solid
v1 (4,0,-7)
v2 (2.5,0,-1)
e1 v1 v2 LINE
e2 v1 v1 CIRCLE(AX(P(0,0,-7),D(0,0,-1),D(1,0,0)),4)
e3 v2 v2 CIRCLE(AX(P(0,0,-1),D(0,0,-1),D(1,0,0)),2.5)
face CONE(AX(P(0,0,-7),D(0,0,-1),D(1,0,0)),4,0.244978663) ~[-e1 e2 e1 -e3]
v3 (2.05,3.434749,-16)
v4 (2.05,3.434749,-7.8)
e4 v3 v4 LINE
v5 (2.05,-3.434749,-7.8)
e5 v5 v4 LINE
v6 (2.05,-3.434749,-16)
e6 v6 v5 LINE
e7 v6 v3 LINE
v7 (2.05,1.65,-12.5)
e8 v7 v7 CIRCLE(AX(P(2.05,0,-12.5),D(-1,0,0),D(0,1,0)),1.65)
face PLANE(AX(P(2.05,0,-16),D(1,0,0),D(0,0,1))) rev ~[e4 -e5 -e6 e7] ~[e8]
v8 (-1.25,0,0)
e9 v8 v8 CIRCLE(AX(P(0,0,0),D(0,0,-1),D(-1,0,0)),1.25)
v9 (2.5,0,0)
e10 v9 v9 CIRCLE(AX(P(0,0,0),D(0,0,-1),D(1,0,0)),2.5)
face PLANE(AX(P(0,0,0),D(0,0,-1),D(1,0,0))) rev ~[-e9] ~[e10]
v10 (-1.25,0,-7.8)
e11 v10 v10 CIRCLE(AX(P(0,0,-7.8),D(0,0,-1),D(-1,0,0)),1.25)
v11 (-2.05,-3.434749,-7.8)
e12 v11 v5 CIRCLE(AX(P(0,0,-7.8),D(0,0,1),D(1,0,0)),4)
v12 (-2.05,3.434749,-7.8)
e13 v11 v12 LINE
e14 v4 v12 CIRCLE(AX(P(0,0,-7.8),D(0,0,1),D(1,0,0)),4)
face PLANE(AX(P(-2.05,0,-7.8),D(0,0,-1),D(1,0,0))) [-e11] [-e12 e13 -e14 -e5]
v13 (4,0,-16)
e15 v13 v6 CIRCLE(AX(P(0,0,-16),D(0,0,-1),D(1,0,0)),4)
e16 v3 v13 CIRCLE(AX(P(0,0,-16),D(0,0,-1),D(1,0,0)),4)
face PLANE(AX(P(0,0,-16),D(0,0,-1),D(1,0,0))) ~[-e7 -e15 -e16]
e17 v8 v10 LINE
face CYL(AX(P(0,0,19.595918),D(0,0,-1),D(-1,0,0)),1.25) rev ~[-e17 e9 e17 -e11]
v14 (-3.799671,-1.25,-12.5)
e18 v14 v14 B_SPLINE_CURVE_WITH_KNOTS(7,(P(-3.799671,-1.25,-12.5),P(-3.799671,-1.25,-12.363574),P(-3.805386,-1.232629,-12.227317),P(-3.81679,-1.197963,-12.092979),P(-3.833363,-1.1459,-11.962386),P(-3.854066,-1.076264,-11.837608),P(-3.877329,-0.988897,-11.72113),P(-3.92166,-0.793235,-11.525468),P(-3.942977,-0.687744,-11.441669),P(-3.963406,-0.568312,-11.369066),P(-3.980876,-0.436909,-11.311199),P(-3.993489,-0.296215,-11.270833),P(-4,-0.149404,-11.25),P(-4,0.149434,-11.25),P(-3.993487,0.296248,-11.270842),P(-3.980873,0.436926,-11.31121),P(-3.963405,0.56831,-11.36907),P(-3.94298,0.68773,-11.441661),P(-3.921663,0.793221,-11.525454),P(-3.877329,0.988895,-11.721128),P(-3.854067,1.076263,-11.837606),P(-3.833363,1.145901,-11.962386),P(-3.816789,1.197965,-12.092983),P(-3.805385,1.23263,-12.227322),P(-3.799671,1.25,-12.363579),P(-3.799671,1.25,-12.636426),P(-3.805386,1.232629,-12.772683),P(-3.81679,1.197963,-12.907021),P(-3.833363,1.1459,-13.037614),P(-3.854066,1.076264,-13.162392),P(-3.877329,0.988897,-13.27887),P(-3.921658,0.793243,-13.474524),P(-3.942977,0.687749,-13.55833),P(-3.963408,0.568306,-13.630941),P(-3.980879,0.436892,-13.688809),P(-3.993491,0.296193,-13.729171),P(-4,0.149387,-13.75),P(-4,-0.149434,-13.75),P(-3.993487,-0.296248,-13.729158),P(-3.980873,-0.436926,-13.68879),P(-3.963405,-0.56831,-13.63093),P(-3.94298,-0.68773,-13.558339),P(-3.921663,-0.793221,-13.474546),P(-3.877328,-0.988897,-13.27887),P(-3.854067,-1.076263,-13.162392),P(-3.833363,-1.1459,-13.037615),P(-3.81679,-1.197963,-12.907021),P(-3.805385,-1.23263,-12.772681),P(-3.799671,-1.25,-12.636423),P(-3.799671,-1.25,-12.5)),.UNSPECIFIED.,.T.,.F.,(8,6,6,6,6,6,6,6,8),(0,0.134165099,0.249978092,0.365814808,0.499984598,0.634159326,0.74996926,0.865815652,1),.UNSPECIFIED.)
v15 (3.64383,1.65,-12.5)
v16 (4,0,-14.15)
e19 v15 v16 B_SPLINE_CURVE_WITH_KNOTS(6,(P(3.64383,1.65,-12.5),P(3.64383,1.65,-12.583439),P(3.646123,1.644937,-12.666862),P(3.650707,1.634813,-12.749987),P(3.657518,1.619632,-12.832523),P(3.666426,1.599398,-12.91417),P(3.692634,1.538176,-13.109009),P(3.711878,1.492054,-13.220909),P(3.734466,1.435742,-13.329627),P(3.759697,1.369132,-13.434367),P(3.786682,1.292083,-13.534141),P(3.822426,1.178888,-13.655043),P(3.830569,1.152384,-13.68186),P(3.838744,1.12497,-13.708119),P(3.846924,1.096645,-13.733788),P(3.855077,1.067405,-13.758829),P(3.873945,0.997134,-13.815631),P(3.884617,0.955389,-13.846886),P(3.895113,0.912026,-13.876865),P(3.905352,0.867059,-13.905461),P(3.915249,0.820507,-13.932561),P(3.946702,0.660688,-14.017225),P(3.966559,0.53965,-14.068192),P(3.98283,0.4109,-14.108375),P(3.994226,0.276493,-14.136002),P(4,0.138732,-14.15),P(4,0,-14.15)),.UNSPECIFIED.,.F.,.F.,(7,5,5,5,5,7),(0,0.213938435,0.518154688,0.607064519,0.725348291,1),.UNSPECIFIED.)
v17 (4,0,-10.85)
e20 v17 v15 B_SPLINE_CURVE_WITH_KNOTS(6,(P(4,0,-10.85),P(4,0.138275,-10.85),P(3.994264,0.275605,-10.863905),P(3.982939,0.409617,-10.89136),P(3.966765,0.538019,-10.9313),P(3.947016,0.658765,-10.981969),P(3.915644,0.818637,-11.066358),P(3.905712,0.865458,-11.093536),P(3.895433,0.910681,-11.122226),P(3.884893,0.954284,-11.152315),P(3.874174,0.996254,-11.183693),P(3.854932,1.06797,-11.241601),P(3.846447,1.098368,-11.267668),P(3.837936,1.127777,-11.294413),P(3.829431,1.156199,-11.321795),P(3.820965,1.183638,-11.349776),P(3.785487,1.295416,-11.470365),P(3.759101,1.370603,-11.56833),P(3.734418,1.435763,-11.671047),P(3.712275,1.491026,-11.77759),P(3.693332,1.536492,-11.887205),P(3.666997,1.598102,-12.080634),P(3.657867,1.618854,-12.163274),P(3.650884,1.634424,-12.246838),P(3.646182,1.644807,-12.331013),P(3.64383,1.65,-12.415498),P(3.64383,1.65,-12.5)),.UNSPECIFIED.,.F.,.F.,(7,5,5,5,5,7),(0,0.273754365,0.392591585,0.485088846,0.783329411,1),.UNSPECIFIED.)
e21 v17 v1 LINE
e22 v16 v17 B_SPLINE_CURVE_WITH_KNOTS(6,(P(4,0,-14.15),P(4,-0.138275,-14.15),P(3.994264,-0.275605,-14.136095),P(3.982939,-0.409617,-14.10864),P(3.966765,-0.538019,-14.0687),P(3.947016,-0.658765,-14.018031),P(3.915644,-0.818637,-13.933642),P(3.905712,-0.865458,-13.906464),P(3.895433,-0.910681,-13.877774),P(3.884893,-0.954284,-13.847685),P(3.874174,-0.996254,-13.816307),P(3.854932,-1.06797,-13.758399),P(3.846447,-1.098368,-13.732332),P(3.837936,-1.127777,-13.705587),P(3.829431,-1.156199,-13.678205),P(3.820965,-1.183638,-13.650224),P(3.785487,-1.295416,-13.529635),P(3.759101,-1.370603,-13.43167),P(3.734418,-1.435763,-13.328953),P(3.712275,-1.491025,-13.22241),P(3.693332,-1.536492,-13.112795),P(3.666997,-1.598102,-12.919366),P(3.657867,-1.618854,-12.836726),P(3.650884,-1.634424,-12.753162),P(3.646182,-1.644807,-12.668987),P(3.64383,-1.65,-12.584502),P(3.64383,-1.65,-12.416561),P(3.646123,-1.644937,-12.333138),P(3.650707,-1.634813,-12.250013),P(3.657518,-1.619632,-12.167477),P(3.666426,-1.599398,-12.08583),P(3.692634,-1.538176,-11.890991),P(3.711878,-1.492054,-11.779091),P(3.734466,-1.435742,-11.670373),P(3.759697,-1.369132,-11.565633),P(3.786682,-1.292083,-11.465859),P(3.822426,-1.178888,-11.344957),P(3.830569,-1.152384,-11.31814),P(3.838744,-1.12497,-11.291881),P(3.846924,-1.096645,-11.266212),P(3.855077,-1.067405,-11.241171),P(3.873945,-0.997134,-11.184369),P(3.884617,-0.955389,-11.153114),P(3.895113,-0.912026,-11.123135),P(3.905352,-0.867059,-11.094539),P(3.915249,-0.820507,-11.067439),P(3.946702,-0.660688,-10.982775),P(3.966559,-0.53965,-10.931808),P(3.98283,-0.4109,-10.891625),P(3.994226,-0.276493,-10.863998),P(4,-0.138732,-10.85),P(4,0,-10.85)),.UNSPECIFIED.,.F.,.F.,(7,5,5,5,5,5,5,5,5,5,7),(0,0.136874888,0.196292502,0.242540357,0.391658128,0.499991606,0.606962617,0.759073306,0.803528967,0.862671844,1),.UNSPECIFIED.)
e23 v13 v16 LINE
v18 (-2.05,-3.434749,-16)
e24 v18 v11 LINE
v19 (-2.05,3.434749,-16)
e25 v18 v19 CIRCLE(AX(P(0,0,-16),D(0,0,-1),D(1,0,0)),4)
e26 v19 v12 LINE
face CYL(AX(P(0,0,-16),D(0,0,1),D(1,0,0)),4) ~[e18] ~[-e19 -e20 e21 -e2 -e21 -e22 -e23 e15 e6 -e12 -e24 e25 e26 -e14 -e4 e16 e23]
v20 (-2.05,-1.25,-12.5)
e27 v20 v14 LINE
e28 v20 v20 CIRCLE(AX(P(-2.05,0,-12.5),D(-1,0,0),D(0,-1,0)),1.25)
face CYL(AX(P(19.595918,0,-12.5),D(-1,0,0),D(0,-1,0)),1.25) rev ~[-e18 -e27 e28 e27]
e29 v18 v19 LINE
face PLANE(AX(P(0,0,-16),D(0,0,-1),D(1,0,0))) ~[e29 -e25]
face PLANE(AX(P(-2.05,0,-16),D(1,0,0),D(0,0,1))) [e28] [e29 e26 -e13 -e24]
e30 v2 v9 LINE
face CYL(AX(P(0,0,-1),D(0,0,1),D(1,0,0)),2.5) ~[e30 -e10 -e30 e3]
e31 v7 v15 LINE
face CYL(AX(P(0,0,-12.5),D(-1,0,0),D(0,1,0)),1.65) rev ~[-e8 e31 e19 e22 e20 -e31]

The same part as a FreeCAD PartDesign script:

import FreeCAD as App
import Part
import Sketcher


def add_polygon(sketch, points):
    """Adds a closed chain of lines whose ends are joined by coincident constraints."""
    first, n = sketch.GeometryCount, len(points)
    for a, b in zip(points, points[1:] + points[:1]):
        sketch.addGeometry(Part.LineSegment(App.Vector(*a, 0), App.Vector(*b, 0)), False)
    for i in range(n):
        sketch.addConstraint(Sketcher.Constraint("Coincident", first + i, 2, first + (i + 1) % n, 1))

doc = App.newDocument("Part")
body = doc.addObject("PartDesign::Body", "Body")

# Sketch on XZ plane
sketch1 = body.newObject("Sketcher::SketchObject", "Sketch")
sketch1.AttachmentSupport = (doc.getObject("XZ_Plane"), [""])
sketch1.MapMode = "FlatFace"
add_polygon(sketch1, [(2.5, 0), (0, 0), (0, -16), (4, -16), (4, -7), (2.5, -1)])  # lines 0-5
sketch1.addConstraint([
    Sketcher.Constraint("Horizontal", 0),
    Sketcher.Constraint("Vertical", 1),
    Sketcher.Constraint("Horizontal", 2),
    Sketcher.Constraint("Vertical", 3),
    Sketcher.Constraint("Vertical", 5),
    Sketcher.Constraint("Coincident", 0, 2, -1, 1),
    Sketcher.Constraint("DistanceX", 2, 1, 2, 2, 4.0),
    Sketcher.Constraint("DistanceY", 1, 2, 1, 1, 16.0),
    Sketcher.Constraint("DistanceY", 3, 1, 3, 2, 9.0),
    Sketcher.Constraint("DistanceY", 5, 1, 5, 2, 1.0),
    Sketcher.Constraint("DistanceX", 0, 2, 0, 1, 2.5),
])
revolution = body.newObject("PartDesign::Revolution", "Revolution")
revolution.Profile = sketch1
revolution.ReferenceAxis = (sketch1, ["V_Axis"])
revolution.Angle = 360

# Sketch on XZ plane
sketch2 = body.newObject("Sketcher::SketchObject", "Sketch001")
sketch2.AttachmentSupport = (doc.getObject("XZ_Plane"), [""])
sketch2.MapMode = "FlatFace"
add_polygon(sketch2, [(-2, -7.8), (-2, -16), (2, -16), (2, -7.8)])  # lines 0-3
sketch2.addConstraint([
    Sketcher.Constraint("Vertical", 0),
    Sketcher.Constraint("Horizontal", 1),
    Sketcher.Constraint("Vertical", 2),
    Sketcher.Constraint("Horizontal", 3),
    Sketcher.Constraint("DistanceX", 1, 1, 1, 2, 4.1),
    Sketcher.Constraint("DistanceY", 0, 2, 0, 1, 8.2),
    Sketcher.Constraint("DistanceY", 0, 2, -1, 1, 16.0),
    Sketcher.Constraint("DistanceX", 0, 2, -1, 1, 2.05),
])
pocket1 = body.newObject("PartDesign::Pocket", "Pocket")
pocket1.Profile = sketch2
pocket1.Type = "ThroughAll"
pocket1.Midplane = True

# Sketch on YZ plane
sketch3 = body.newObject("Sketcher::SketchObject", "Sketch002")
sketch3.AttachmentSupport = (doc.getObject("YZ_Plane"), [""])
sketch3.MapMode = "FlatFace"
sketch3.addGeometry(Part.Circle(App.Vector(0, -12.5, 0), App.Vector(0, 0, 1), 1.6), False)
sketch3.addConstraint([
    Sketcher.Constraint("PointOnObject", 0, 3, -2),
    Sketcher.Constraint("Diameter", 0, 3.3),
    Sketcher.Constraint("DistanceY", 0, 3, -1, 1, 12.5),
])
pocket2 = body.newObject("PartDesign::Pocket", "Pocket001")
pocket2.Profile = sketch3
pocket2.Type = "ThroughAll"
pocket2.Reversed = True

# Sketch on YZ plane
sketch4 = body.newObject("Sketcher::SketchObject", "Sketch003")
sketch4.AttachmentSupport = (doc.getObject("YZ_Plane"), [""])
sketch4.MapMode = "FlatFace"
sketch4.addGeometry(Part.Circle(App.Vector(0, -12.5, 0), App.Vector(0, 0, 1), 1.2), False)
sketch4.addConstraint([
    Sketcher.Constraint("PointOnObject", 0, 3, -2),
    Sketcher.Constraint("Diameter", 0, 2.5),
    Sketcher.Constraint("DistanceY", 0, 3, -1, 1, 12.5),
])
doc.recompute()
hole = body.newObject("PartDesign::Hole", "Hole")
hole.Profile = sketch4
hole.ThreadType = "None"
hole.Diameter = 2.5
hole.DepthType = "ThroughAll"

# Sketch on XY plane
sketch5 = body.newObject("Sketcher::SketchObject", "Sketch004")
sketch5.AttachmentSupport = (doc.getObject("XY_Plane"), [""])
sketch5.MapMode = "FlatFace"
sketch5.addGeometry(Part.Circle(App.Vector(0, 0, 0), App.Vector(0, 0, 1), 1.2), False)
sketch5.addConstraint([
    Sketcher.Constraint("Coincident", 0, 3, -1, 1),
    Sketcher.Constraint("Diameter", 0, 2.5),
])
doc.recompute()
hole2 = body.newObject("PartDesign::Hole", "Hole001")
hole2.Profile = sketch5
hole2.ThreadType = "None"
hole2.Diameter = 2.5
hole2.DepthType = "ThroughAll"

doc.recompute()
